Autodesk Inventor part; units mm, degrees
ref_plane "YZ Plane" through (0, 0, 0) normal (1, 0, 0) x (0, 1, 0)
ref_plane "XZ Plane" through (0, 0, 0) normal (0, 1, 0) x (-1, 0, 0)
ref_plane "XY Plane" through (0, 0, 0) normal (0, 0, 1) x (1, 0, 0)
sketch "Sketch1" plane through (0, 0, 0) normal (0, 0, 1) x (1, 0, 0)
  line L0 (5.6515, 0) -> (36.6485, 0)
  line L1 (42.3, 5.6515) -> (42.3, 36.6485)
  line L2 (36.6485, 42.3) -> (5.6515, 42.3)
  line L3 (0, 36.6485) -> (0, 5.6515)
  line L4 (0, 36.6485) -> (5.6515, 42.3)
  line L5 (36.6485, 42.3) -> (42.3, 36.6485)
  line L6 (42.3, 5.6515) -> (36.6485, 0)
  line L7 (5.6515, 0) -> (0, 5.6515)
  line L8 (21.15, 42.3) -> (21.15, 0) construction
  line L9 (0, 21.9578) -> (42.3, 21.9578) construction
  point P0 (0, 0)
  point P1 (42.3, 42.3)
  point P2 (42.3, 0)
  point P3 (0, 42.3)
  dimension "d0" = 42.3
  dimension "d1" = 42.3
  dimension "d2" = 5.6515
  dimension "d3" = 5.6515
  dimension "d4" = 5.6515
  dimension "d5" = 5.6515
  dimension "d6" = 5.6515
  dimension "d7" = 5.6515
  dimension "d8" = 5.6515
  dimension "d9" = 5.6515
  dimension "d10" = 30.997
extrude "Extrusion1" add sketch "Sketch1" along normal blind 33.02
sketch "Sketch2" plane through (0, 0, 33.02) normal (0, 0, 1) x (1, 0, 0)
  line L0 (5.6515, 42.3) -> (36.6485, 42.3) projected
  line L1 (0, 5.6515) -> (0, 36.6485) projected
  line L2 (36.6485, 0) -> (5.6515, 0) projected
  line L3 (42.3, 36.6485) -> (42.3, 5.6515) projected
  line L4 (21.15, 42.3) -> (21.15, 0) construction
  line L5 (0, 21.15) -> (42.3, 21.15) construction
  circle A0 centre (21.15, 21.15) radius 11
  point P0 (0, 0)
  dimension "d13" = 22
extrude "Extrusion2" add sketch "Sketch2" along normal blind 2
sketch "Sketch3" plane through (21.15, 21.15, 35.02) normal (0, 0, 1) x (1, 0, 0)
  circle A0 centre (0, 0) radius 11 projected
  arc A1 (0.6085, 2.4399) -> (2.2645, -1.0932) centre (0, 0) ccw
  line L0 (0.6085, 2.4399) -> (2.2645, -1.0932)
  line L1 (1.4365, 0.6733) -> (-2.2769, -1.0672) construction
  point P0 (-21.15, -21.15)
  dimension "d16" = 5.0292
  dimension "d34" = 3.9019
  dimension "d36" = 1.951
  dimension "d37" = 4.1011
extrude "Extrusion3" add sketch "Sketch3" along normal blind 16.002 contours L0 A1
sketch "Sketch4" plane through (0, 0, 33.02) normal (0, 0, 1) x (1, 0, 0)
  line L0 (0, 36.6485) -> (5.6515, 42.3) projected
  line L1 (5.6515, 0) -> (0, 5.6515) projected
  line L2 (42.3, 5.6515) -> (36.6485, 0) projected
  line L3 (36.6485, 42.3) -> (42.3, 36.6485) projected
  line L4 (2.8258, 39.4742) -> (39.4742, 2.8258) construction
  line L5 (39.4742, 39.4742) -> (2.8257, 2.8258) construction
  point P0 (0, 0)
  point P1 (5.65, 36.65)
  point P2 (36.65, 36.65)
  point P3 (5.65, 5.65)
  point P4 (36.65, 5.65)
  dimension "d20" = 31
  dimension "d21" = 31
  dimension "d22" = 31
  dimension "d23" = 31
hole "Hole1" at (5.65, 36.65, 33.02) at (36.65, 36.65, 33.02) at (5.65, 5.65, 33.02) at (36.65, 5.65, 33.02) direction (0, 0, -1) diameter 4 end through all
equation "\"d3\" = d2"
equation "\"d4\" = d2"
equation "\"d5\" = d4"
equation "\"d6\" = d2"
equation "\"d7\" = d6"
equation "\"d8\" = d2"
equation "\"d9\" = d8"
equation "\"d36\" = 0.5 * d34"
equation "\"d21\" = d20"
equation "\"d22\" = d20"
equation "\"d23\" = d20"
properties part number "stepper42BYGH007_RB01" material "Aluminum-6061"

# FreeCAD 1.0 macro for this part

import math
import FreeCAD as App
import Part
import Sketcher
Q = App.Units.Quantity


def add_polygon(sketch, points):
    """Adds a closed chain of lines whose ends are joined by coincident constraints."""
    first, n = sketch.GeometryCount, len(points)
    for a, b in zip(points, points[1:] + points[:1]):
        sketch.addGeometry(Part.LineSegment(App.Vector(*a, 0), App.Vector(*b, 0)), False)
    for i in range(n):
        sketch.addConstraint(Sketcher.Constraint("Coincident", first + i, 2, first + (i + 1) % n, 1))

doc = App.newDocument("Part")
body = doc.addObject("PartDesign::Body", "Body")

sketch1 = body.newObject("Sketcher::SketchObject", "Sketch")
sketch1.AttachmentSupport = (doc.getObject("XY_Plane"), [""])
sketch1.MapMode = "FlatFace"
add_polygon(sketch1, [(0, 6), (6, 0), (37, 0), (42, 6), (42, 37), (37, 42), (6, 42), (0, 37)])
sketch1.addConstraint(Sketcher.Constraint("Horizontal", 1))
sketch1.addConstraint(Sketcher.Constraint("Vertical", 3))
sketch1.addConstraint(Sketcher.Constraint("Horizontal", 5))
sketch1.addConstraint(Sketcher.Constraint("Vertical", 7))
sketch1.addConstraint(Sketcher.Constraint("PointOnObject", 0, 2, -1))
sketch1.addConstraint(Sketcher.Constraint("PointOnObject", 6, 2, -2))
sketch1.addConstraint(Sketcher.Constraint("Perpendicular", 0, 2))
sketch1.addConstraint(Sketcher.Constraint("Perpendicular", 2, 4))
sketch1.addConstraint(Sketcher.Constraint("Perpendicular", 4, 6))
sketch1.addConstraint(Sketcher.Constraint("Horizontal", 3, 2, 6, 2))
sketch1.addConstraint(Sketcher.Constraint("Horizontal", 2, 2, 7, 2))
sketch1.addConstraint(Sketcher.Constraint("Vertical", 1, 2, 4, 2))
sketch1.addConstraint(Sketcher.Constraint("Vertical", 0, 2, 5, 2))
sketch1.addConstraint(Sketcher.Constraint("Equal", 5, 3))
sketch1.addConstraint(Sketcher.Constraint("DistanceX", -1, 1, 2, 2, Q("42.3 mm")))
sketch1.addConstraint(Sketcher.Constraint("DistanceX", 1, 1, 1, 2, Q("30.997 mm")))
pad1 = body.newObject("PartDesign::Pad", "Pad")
pad1.Profile = sketch1
pad1.Length = 33.02

sketch2 = body.newObject("Sketcher::SketchObject", "Sketch001")
sketch2.AttachmentSupport = (doc.getObject("XY_Plane"), [""])
sketch2.MapMode = "FlatFace"
sketch2.AttachmentOffset = App.Placement(App.Vector(0, 0, 33.02), App.Rotation())
sketch2.addGeometry(Part.Circle(App.Vector(21, 21, 0), App.Vector(0, 0, 1), 11), False)
sketch2.addConstraint(Sketcher.Constraint("Diameter", 0, Q("22 mm")))
sketch2.addConstraint(Sketcher.Constraint("DistanceX", -1, 1, 0, 3, Q("21.15 mm")))
sketch2.addConstraint(Sketcher.Constraint("DistanceY", -1, 1, 0, 3, Q("21.15 mm")))
pad2 = body.newObject("PartDesign::Pad", "Pad001")
pad2.Profile = sketch2
pad2.Length = 2

sketch3 = body.newObject("Sketcher::SketchObject", "Sketch002")
sketch3.AttachmentSupport = (doc.getObject("XY_Plane"), [""])
sketch3.MapMode = "FlatFace"
sketch3.AttachmentOffset = App.Placement(App.Vector(0, 0, 35.02), App.Rotation())
sketch3.addGeometry(Part.LineSegment(App.Vector(23.4, 20.1, 0), App.Vector(21.8, 23.6, 0)), False)
sketch3.addGeometry(Part.ArcOfCircle(Part.Circle(App.Vector(21.1, 21.1, 0), App.Vector(0, 0, 1), 2.5), math.radians(76), math.radians(334)), False)
sketch3.addConstraint(Sketcher.Constraint("Coincident", 0, 1, 1, 2))
sketch3.addConstraint(Sketcher.Constraint("Coincident", 1, 1, 0, 2))
sketch3.addConstraint(Sketcher.Constraint("Radius", 1, Q("2.5146 mm")))
sketch3.addConstraint(Sketcher.Constraint("Distance", 0, Q("3.902 mm")))
sketch3.addConstraint(Sketcher.Constraint("DistanceX", -1, 1, 1, 3, Q("21.15 mm")))
sketch3.addConstraint(Sketcher.Constraint("DistanceY", -1, 1, 1, 3, Q("21.15 mm")))
sketch3.addConstraint(Sketcher.Constraint("DistanceY", -1, 1, 1, 1, Q("23.59 mm")))
pad3 = body.newObject("PartDesign::Pad", "Pad002")
pad3.Profile = sketch3
pad3.Length = 16.002

sketch4 = body.newObject("Sketcher::SketchObject", "Sketch003")
sketch4.AttachmentSupport = (doc.getObject("XY_Plane"), [""])
sketch4.MapMode = "FlatFace"
sketch4.AttachmentOffset = App.Placement(App.Vector(0, 0, 33.02), App.Rotation())
sketch4.addGeometry(Part.Circle(App.Vector(5.7, 36.6, 0), App.Vector(0, 0, 1), 2), False)
sketch4.addGeometry(Part.Circle(App.Vector(36.6, 36.6, 0), App.Vector(0, 0, 1), 2), False)
sketch4.addGeometry(Part.Circle(App.Vector(5.7, 5.7, 0), App.Vector(0, 0, 1), 2), False)
sketch4.addGeometry(Part.Circle(App.Vector(36.6, 5.7, 0), App.Vector(0, 0, 1), 2), False)
sketch4.addConstraint(Sketcher.Constraint("Equal", 0, 1))
sketch4.addConstraint(Sketcher.Constraint("Equal", 1, 2))
sketch4.addConstraint(Sketcher.Constraint("Equal", 2, 3))
sketch4.addConstraint(Sketcher.Constraint("Horizontal", 0, 3, 1, 3))
sketch4.addConstraint(Sketcher.Constraint("Horizontal", 2, 3, 3, 3))
sketch4.addConstraint(Sketcher.Constraint("Vertical", 0, 3, 2, 3))
sketch4.addConstraint(Sketcher.Constraint("Vertical", 1, 3, 3, 3))
sketch4.addConstraint(Sketcher.Constraint("Diameter", 0, Q("4 mm")))
sketch4.addConstraint(Sketcher.Constraint("DistanceX", 0, 3, 1, 3, Q("31 mm")))
sketch4.addConstraint(Sketcher.Constraint("DistanceY", 2, 3, 0, 3, Q("31 mm")))
sketch4.addConstraint(Sketcher.Constraint("DistanceX", -1, 1, 0, 3, Q("5.65 mm")))
sketch4.addConstraint(Sketcher.Constraint("DistanceY", -1, 1, 0, 3, Q("36.65 mm")))
doc.recompute()
hole = body.newObject("PartDesign::Hole", "Hole")
hole.Profile = sketch4
hole.ThreadType = "None"
hole.Diameter = 4
hole.DepthType = "ThroughAll"

doc.recompute()
